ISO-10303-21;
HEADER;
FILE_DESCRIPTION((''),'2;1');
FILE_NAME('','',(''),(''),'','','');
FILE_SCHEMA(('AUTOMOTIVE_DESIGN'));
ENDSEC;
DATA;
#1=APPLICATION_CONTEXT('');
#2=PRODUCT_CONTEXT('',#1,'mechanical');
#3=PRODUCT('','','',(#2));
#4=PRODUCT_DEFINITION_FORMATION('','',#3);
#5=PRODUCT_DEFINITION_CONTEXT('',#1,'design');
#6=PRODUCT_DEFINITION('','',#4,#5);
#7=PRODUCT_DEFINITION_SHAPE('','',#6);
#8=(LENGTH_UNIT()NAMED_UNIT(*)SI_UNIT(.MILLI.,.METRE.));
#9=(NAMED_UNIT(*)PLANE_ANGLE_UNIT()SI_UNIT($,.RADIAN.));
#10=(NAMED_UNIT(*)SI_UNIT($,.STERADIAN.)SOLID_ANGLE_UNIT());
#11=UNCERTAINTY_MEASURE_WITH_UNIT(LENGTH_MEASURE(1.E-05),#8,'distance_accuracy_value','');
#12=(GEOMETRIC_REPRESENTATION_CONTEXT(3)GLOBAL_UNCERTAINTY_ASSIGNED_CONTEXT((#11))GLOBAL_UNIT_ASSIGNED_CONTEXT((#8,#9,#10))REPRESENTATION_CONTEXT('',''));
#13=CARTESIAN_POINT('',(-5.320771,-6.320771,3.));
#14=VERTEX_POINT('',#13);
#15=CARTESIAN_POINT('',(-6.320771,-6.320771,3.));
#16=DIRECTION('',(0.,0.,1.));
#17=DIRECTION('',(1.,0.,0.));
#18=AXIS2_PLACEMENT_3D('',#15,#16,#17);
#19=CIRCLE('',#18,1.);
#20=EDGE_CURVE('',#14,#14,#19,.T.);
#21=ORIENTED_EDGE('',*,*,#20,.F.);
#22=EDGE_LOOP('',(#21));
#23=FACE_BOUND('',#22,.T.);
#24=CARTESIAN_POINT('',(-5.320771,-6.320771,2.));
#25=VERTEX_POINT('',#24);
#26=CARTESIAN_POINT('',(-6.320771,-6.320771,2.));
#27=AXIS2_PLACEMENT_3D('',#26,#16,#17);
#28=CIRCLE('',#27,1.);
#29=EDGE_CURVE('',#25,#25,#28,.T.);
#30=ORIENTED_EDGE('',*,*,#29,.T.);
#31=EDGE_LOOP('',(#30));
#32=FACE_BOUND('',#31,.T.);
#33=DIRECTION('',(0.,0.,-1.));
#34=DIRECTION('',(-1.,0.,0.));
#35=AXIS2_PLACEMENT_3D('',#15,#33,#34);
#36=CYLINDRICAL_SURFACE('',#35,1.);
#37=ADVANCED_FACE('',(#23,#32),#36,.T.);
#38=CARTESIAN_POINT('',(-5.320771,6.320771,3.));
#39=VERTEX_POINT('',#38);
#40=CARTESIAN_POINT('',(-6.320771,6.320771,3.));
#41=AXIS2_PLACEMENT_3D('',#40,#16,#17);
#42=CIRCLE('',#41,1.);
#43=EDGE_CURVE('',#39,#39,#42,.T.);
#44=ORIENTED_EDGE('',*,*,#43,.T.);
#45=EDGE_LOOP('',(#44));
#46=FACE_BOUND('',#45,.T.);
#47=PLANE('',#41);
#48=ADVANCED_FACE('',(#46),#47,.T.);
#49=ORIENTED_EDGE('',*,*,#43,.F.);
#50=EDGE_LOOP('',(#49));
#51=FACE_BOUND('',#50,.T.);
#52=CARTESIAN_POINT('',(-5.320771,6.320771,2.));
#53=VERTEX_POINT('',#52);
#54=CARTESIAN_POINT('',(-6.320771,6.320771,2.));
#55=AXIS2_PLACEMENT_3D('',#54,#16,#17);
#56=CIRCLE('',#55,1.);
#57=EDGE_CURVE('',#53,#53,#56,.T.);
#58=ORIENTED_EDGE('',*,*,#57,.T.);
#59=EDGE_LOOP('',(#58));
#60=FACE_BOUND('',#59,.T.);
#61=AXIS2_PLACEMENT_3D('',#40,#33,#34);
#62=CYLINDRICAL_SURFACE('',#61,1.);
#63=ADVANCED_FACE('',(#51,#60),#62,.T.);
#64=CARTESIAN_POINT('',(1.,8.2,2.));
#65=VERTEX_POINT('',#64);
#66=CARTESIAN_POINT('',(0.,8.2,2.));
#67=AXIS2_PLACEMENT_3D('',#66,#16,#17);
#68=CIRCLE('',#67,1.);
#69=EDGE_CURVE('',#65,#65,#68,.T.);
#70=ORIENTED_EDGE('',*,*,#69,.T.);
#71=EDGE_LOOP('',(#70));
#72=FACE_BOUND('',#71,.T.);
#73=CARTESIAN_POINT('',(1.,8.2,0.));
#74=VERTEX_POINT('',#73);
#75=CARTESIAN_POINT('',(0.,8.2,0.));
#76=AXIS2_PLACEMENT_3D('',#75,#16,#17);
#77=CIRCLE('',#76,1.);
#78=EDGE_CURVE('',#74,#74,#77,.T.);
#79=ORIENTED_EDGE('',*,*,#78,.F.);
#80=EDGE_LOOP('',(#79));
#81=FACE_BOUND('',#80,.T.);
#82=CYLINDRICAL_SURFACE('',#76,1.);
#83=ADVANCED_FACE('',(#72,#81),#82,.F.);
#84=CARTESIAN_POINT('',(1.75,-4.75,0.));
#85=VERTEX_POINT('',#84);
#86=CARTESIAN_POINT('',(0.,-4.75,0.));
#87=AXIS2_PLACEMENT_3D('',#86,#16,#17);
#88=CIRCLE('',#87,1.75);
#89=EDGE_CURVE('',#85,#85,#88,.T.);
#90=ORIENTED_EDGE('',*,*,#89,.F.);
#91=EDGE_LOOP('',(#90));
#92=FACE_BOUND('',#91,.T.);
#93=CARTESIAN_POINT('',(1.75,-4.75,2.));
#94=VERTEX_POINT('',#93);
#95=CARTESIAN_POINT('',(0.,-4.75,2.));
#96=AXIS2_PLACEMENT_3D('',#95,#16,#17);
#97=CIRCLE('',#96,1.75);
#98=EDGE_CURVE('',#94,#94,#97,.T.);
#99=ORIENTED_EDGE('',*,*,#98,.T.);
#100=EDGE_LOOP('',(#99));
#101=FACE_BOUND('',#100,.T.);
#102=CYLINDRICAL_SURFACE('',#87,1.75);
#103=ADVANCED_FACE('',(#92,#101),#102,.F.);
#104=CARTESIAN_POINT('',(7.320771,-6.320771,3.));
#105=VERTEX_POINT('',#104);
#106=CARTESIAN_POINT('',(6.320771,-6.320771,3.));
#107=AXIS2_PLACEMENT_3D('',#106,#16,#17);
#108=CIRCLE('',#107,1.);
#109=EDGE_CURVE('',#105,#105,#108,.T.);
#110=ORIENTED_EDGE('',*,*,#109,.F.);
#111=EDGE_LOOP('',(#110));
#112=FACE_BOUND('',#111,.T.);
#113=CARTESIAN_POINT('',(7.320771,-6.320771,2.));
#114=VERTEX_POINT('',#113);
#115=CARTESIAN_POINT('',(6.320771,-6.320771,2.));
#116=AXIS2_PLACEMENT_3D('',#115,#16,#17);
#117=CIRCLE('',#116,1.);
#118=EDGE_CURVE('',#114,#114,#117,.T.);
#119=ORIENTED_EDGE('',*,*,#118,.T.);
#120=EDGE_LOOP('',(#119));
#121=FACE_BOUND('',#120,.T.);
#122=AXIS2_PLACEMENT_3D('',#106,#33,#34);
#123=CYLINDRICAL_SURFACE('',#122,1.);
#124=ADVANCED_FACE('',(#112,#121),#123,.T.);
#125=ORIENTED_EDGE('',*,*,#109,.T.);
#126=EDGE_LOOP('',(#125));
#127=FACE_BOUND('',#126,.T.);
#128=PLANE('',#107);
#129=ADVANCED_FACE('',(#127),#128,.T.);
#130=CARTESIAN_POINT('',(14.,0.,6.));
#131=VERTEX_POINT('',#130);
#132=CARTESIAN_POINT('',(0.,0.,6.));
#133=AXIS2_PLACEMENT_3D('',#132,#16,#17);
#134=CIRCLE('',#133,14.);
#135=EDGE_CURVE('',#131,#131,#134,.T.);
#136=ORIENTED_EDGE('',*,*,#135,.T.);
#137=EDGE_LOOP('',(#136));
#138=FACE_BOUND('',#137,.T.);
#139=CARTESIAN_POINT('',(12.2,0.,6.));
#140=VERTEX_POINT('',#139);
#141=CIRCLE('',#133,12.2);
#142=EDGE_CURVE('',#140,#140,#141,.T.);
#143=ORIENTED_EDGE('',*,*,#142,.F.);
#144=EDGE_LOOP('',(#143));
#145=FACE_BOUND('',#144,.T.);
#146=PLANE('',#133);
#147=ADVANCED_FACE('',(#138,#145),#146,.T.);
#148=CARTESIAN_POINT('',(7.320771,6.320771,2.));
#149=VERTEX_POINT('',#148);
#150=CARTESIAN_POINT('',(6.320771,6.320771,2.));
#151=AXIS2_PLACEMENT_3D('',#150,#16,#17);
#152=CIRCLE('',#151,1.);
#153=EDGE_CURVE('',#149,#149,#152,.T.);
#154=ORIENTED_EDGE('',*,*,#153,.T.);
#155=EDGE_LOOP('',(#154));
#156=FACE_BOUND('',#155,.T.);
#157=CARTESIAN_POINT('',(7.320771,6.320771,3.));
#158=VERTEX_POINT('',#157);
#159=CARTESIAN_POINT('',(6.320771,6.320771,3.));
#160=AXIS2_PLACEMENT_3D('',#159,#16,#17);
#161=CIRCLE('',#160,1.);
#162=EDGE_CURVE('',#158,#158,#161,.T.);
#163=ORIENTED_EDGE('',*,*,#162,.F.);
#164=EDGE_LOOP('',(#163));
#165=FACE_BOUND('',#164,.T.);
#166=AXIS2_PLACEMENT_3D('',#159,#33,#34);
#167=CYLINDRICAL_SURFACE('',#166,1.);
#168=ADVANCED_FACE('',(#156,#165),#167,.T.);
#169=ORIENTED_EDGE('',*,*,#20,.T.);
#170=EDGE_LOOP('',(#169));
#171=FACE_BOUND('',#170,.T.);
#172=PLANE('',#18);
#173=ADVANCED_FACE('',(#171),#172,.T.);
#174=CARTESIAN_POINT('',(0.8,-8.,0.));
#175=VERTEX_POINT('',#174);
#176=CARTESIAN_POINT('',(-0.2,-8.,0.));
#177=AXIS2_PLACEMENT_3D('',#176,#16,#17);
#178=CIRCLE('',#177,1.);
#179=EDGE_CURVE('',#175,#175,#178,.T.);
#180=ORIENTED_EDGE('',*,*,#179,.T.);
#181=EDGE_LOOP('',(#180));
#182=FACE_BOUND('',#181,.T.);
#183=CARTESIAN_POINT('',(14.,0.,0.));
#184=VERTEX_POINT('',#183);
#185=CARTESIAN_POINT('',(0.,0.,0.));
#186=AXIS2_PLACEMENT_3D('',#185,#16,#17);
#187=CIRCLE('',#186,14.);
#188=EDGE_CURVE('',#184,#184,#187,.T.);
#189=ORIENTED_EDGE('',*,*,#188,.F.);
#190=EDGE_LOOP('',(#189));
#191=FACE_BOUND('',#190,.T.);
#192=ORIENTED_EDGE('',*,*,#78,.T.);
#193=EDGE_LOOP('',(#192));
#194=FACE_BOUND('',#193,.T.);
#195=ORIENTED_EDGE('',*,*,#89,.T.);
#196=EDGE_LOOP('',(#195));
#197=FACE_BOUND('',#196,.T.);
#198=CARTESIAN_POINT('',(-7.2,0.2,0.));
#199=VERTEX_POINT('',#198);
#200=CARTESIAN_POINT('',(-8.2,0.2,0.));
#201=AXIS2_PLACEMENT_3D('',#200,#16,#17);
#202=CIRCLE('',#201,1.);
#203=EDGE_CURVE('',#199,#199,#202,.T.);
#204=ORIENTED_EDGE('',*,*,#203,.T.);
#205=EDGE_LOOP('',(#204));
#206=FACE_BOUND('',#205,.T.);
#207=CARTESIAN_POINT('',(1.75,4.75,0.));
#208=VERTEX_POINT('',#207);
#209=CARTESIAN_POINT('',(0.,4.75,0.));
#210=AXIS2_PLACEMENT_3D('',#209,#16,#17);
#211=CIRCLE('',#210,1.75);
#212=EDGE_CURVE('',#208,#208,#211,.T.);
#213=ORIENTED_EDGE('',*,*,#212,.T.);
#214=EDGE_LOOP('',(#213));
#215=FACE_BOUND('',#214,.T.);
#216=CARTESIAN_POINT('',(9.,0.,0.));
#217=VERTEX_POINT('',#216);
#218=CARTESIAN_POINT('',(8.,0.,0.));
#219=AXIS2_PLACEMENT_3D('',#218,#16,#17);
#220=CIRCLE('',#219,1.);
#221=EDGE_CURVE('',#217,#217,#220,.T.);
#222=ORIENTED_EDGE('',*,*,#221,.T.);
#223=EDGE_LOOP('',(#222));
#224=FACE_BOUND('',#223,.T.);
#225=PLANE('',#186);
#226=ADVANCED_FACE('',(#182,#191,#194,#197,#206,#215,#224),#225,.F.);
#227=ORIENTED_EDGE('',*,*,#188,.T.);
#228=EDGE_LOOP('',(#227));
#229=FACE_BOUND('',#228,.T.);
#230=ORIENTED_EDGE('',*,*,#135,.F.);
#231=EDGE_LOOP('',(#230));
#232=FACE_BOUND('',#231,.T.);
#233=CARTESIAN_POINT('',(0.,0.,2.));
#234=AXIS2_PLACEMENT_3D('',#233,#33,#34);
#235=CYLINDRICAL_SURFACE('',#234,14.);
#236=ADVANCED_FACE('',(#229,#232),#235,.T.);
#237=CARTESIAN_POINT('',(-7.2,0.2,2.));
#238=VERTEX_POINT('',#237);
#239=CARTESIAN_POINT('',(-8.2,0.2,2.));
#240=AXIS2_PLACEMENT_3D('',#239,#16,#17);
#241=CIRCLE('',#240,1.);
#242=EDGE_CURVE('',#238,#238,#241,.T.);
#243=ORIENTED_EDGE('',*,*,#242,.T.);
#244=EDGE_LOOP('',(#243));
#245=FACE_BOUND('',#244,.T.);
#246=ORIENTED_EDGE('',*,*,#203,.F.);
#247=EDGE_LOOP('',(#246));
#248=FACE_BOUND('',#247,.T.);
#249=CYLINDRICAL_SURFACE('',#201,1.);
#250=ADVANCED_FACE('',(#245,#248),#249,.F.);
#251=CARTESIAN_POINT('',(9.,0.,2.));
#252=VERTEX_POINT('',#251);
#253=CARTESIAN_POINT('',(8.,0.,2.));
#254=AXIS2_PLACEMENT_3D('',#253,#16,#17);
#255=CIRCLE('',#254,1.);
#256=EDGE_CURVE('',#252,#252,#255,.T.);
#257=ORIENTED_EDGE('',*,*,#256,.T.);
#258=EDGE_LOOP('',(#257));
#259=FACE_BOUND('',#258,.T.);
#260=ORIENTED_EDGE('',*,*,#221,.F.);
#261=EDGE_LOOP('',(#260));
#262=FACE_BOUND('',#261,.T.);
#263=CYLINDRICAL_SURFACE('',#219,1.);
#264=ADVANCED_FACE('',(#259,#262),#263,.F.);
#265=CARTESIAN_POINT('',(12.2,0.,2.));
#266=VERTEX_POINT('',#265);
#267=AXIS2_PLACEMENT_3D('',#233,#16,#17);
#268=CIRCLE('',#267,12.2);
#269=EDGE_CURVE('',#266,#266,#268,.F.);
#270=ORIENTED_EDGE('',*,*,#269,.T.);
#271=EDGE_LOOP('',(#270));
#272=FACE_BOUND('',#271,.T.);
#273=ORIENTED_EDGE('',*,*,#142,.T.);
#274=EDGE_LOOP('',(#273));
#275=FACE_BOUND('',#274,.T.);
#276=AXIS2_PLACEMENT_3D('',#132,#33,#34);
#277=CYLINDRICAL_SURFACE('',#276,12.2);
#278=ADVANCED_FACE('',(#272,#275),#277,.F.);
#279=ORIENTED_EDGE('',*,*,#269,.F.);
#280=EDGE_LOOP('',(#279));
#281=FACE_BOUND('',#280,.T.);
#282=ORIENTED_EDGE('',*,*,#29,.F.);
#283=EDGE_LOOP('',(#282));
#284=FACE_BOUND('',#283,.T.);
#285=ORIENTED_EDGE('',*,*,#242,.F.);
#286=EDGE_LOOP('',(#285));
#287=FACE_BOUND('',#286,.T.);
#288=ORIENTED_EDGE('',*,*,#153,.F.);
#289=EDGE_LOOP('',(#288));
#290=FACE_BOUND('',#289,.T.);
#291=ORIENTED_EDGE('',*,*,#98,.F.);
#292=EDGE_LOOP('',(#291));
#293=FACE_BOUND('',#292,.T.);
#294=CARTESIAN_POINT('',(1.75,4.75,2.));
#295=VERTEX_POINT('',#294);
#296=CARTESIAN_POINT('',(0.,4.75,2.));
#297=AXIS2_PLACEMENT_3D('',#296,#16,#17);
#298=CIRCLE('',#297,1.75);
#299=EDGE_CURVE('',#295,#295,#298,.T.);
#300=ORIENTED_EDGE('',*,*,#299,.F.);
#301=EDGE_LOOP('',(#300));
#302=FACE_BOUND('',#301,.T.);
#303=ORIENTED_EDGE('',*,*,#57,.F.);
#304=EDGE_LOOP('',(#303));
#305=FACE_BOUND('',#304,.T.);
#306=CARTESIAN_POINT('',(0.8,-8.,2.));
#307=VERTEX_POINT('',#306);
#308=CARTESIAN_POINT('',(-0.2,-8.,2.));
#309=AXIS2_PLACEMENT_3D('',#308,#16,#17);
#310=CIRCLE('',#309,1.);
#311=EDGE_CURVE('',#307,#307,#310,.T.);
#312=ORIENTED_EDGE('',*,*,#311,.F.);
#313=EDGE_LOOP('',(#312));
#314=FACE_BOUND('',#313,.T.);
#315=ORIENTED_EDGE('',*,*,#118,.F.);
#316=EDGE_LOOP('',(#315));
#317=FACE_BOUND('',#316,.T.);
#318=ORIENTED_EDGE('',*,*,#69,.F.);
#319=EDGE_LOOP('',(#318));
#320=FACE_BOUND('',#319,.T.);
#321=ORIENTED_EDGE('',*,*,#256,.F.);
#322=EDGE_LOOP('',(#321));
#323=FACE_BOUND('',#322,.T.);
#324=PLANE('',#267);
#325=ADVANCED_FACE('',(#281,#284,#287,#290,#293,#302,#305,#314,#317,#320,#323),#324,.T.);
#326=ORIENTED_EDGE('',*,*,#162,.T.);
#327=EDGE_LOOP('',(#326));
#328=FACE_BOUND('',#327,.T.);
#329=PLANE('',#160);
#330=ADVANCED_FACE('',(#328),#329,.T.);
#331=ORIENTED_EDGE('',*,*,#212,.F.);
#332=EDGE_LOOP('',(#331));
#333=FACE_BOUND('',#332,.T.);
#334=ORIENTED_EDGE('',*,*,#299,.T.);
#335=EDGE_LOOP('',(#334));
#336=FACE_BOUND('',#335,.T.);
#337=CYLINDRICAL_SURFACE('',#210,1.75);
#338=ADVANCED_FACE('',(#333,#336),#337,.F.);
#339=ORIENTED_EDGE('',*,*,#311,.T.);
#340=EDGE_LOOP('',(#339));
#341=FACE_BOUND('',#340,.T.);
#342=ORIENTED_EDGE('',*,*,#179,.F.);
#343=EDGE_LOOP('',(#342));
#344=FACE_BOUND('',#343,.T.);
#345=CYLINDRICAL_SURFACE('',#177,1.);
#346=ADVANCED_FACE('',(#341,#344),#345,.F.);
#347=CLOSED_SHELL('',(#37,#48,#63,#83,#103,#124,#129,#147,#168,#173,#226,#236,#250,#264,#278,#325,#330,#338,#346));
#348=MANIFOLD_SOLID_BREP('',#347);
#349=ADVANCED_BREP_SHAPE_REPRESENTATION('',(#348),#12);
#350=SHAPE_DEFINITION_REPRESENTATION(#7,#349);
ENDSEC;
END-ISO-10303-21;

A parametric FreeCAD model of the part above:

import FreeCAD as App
import Part
import Sketcher

V = App.Vector
Q = App.Units.Quantity

doc = App.newDocument("Part")
params = doc.addObject("Spreadsheet::Sheet", "Params")
for row, (alias, value) in enumerate([
    ("sketch1_diameter", "28 mm"),
    ("pad1_length", "2 mm"),
    ("sketch2_diameter", "28 mm"),
    ("sketch2_diameter2", "24.4 mm"),
    ("pad2_length", "4 mm"),
    ("sketch3_diameter", "2 mm"),
    ("sketch4_diameter", "3.5 mm"),
    ("sketch5_diameter", "2 mm"),
    ("pad3_length", "1 mm"),
], start=1):
    params.set(f"A{row}", alias)
    params.set(f"B{row}", "=" + value)
    params.setAlias(f"B{row}", alias)

body = doc.addObject("PartDesign::Body", "Body")

# Sketch on XY plane
sketch1 = body.newObject("Sketcher::SketchObject", "Sketch")
sketch1.AttachmentSupport = (doc.getObject("XY_Plane"), [""])
sketch1.MapMode = "FlatFace"
sketch1.addGeometry(Part.Circle(V(0, 0, 0), V(0, 0, 1), 14), False)
sketch1.addConstraint(Sketcher.Constraint("Coincident", 0, 3, -1, 1))
sketch1.addConstraint(Sketcher.Constraint("Diameter", 0, Q("28 mm")))
sketch1.setExpression("Constraints[1]", "Params.sketch1_diameter")
pad1 = body.newObject("PartDesign::Pad", "Pad")
pad1.Profile = sketch1
pad1.setExpression("Length", "Params.pad1_length")

# Sketch on XY plane
sketch2 = body.newObject("Sketcher::SketchObject", "Sketch001")
sketch2.AttachmentSupport = (doc.getObject("XY_Plane"), [""])
sketch2.MapMode = "FlatFace"
sketch2.AttachmentOffset = App.Placement(V(0, 0, 2), App.Rotation())
sketch2.addGeometry(Part.Circle(V(0, 0, 0), V(0, 0, 1), 14), False)
sketch2.addGeometry(Part.Circle(V(0, 0, 0), V(0, 0, 1), 12), False)
sketch2.addConstraint(Sketcher.Constraint("Coincident", 0, 3, -1, 1))
sketch2.addConstraint(Sketcher.Constraint("Coincident", 1, 3, -1, 1))
sketch2.addConstraint(Sketcher.Constraint("Diameter", 0, Q("28 mm")))
sketch2.addConstraint(Sketcher.Constraint("Diameter", 1, Q("24.4 mm")))
sketch2.setExpression("Constraints[2]", "Params.sketch2_diameter")
sketch2.setExpression("Constraints[3]", "Params.sketch2_diameter2")
pad2 = body.newObject("PartDesign::Pad", "Pad001")
pad2.Profile = sketch2
pad2.setExpression("Length", "Params.pad2_length")

# Sketch on XY plane
sketch3 = body.newObject("Sketcher::SketchObject", "Sketch002")
sketch3.AttachmentSupport = (doc.getObject("XY_Plane"), [""])
sketch3.MapMode = "FlatFace"
sketch3.AttachmentOffset = App.Placement(V(0, 0, 2), App.Rotation())
sketch3.addGeometry(Part.Circle(V(0, 8.2, 0), V(0, 0, 1), 1), False)
sketch3.addGeometry(Part.Circle(V(8, 0, 0), V(0, 0, 1), 1), False)
sketch3.addGeometry(Part.Circle(V(-0.2, -8, 0), V(0, 0, 1), 1), False)
sketch3.addGeometry(Part.Circle(V(-8.2, 0.2, 0), V(0, 0, 1), 1), False)
sketch3.addConstraint(Sketcher.Constraint("Equal", 0, 1))
sketch3.addConstraint(Sketcher.Constraint("Equal", 1, 2))
sketch3.addConstraint(Sketcher.Constraint("Equal", 2, 3))
sketch3.addConstraint(Sketcher.Constraint("PointOnObject", 0, 3, -2))
sketch3.addConstraint(Sketcher.Constraint("PointOnObject", 1, 3, -1))
sketch3.addConstraint(Sketcher.Constraint("Diameter", 0, Q("2 mm")))
sketch3.addConstraint(Sketcher.Constraint("DistanceX", -1, 1, 1, 3, Q("8 mm")))
sketch3.addConstraint(Sketcher.Constraint("DistanceY", 2, 3, -1, 1, Q("8 mm")))
sketch3.addConstraint(Sketcher.Constraint("DistanceY", 3, 3, 0, 3, Q("8 mm")))
sketch3.addConstraint(Sketcher.Constraint("DistanceX", 3, 3, 2, 3, Q("8 mm")))
sketch3.addConstraint(Sketcher.Constraint("DistanceY", -1, 1, 0, 3, Q("8.2 mm")))
sketch3.addConstraint(Sketcher.Constraint("DistanceX", 2, 3, -1, 1, Q("0.2 mm")))
sketch3.setExpression("Constraints[5]", "Params.sketch3_diameter")
pocket1 = body.newObject("PartDesign::Pocket", "Pocket")
pocket1.Profile = sketch3
pocket1.Type = "ThroughAll"

# Sketch on XY plane
sketch4 = body.newObject("Sketcher::SketchObject", "Sketch003")
sketch4.AttachmentSupport = (doc.getObject("XY_Plane"), [""])
sketch4.MapMode = "FlatFace"
sketch4.AttachmentOffset = App.Placement(V(0, 0, 2), App.Rotation())
sketch4.addGeometry(Part.Circle(V(0, 4.8, 0), V(0, 0, 1), 1.8), False)
sketch4.addGeometry(Part.Circle(V(0, -4.8, 0), V(0, 0, 1), 1.8), False)
sketch4.addConstraint(Sketcher.Constraint("Equal", 0, 1))
sketch4.addConstraint(Sketcher.Constraint("Symmetric", 0, 3, 1, 3, -1, 1))
sketch4.addConstraint(Sketcher.Constraint("PointOnObject", 0, 3, -2))
sketch4.addConstraint(Sketcher.Constraint("Diameter", 0, Q("3.5 mm")))
sketch4.addConstraint(Sketcher.Constraint("DistanceY", 1, 3, 0, 3, Q("9.5 mm")))
sketch4.setExpression("Constraints[3]", "Params.sketch4_diameter")
pocket2 = body.newObject("PartDesign::Pocket", "Pocket001")
pocket2.Profile = sketch4
pocket2.Type = "ThroughAll"

# Sketch on XY plane
sketch5 = body.newObject("Sketcher::SketchObject", "Sketch004")
sketch5.AttachmentSupport = (doc.getObject("XY_Plane"), [""])
sketch5.MapMode = "FlatFace"
sketch5.AttachmentOffset = App.Placement(V(0, 0, 2), App.Rotation())
sketch5.addGeometry(Part.Circle(V(-6.3, -6.3, 0), V(0, 0, 1), 1), False)
sketch5.addGeometry(Part.Circle(V(-6.3, 6.3, 0), V(0, 0, 1), 1), False)
sketch5.addGeometry(Part.Circle(V(6.3, 6.3, 0), V(0, 0, 1), 1), False)
sketch5.addGeometry(Part.Circle(V(6.3, -6.3, 0), V(0, 0, 1), 1), False)
sketch5.addConstraint(Sketcher.Constraint("Equal", 0, 1))
sketch5.addConstraint(Sketcher.Constraint("Equal", 1, 2))
sketch5.addConstraint(Sketcher.Constraint("Equal", 2, 3))
sketch5.addConstraint(Sketcher.Constraint("Symmetric", 0, 3, 2, 3, -1, 1))
sketch5.addConstraint(Sketcher.Constraint("Symmetric", 1, 3, 3, 3, -1, 1))
sketch5.addConstraint(Sketcher.Constraint("Symmetric", 1, 3, 2, 3, -2))
sketch5.addConstraint(Sketcher.Constraint("Diameter", 0, Q("2 mm")))
sketch5.addConstraint(Sketcher.Constraint("DistanceX", 0, 3, -1, 1, Q("6.320771 mm")))
sketch5.addConstraint(Sketcher.Constraint("DistanceY", 0, 3, -1, 1, Q("6.320771 mm")))
sketch5.setExpression("Constraints[6]", "Params.sketch5_diameter")
pad3 = body.newObject("PartDesign::Pad", "Pad002")
pad3.Profile = sketch5
pad3.setExpression("Length", "Params.pad3_length")

doc.recompute()
